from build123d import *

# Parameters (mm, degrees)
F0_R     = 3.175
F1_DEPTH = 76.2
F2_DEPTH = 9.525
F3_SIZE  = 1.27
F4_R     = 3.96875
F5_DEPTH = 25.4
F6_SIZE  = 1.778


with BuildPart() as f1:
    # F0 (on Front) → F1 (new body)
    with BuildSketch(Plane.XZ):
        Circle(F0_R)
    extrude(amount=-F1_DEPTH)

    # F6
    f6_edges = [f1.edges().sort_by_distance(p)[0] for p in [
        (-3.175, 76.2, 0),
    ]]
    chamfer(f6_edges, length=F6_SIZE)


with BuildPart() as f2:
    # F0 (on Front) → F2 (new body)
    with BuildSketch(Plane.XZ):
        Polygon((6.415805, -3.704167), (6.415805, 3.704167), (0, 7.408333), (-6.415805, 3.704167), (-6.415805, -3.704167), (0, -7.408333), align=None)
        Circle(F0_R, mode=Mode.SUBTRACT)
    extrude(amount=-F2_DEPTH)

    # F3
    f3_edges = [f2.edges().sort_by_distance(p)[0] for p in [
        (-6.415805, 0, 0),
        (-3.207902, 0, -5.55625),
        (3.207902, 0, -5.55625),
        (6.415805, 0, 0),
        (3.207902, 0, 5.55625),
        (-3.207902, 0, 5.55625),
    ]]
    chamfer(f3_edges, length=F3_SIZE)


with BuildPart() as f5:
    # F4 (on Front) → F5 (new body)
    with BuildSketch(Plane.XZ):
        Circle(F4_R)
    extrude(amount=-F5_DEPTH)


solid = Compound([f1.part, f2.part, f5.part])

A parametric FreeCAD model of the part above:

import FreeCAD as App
import Part
import Sketcher
Q = App.Units.Quantity


def edges_at(feature, points):
    """Names of the edges that pass closest to the given points."""
    edges = feature.Shape.Edges
    near = lambda p: min(range(len(edges)), key=lambda i: edges[i].distToShape(Part.Vertex(*p))[0])
    return sorted({f"Edge{near(p) + 1}" for p in points})

doc = App.newDocument("Part")
params = doc.addObject("Spreadsheet::Sheet", "Params")
for row, (alias, value) in enumerate([
    ("sketch1_diameter", "0.25 in"),
    ("pad1_length", "3 in"),
    ("chamfer_size", "0.07 in"),
    ("sketch2_diameter", "0.25 in"),
    ("pad2_length", "0.375 in"),
    ("chamfer2_size", "0.05 in"),
    ("sketch3_diameter", "0.3125 in"),
    ("pad3_length", "1 in"),
], start=1):
    params.set(f"A{row}", alias)
    params.set(f"B{row}", "=" + value)
    params.setAlias(f"B{row}", alias)

body = doc.addObject("PartDesign::Body", "Body")

# Sketch on XZ plane
sketch1 = doc.addObject("Sketcher::SketchObject", "Sketch")
body.addObject(sketch1)
sketch1.AttachmentSupport = (doc.XZ_Plane, [""])
sketch1.MapMode = "FlatFace"
sketch1.addGeometry(Part.Circle(App.Vector(0, 0, 0), App.Vector(0, 0, 1), 3.175), False)
sketch1.addConstraint(Sketcher.Constraint("Coincident", 0, 3, -1, 1))
sketch1.addConstraint(Sketcher.Constraint("Diameter", 0, Q("0.25 in")))
sketch1.setExpression("Constraints[1]", "Params.sketch1_diameter")
pad1 = doc.addObject("PartDesign::Pad", "Pad")
body.addObject(pad1)
pad1.Profile = sketch1
pad1.setExpression("Length", "Params.pad1_length")
pad1.Reversed = True
doc.recompute()

chamfer = doc.addObject("PartDesign::Chamfer", "Chamfer")
body.addObject(chamfer)
chamfer.Base = (pad1, edges_at(pad1, [(-3.175, 76.2, 0)]))
chamfer.setExpression("Size", "Params.chamfer_size")
body2 = doc.addObject("PartDesign::Body", "Body001")

# Sketch on XZ plane
sketch2 = doc.addObject("Sketcher::SketchObject", "Sketch001")
body2.addObject(sketch2)
sketch2.AttachmentSupport = (doc.getObject("XZ_Plane001"), [""])
sketch2.MapMode = "FlatFace"
sketch2.addGeometry(Part.LineSegment(App.Vector(6.415805, -3.704167, 0), App.Vector(6.415805, 3.704167, 0)), False)
sketch2.addGeometry(Part.LineSegment(App.Vector(6.415805, 3.704167, 0), App.Vector(0, 7.408333, 0)), False)
sketch2.addGeometry(Part.LineSegment(App.Vector(0, 7.408333, 0), App.Vector(-6.415805, 3.704167, 0)), False)
sketch2.addGeometry(Part.LineSegment(App.Vector(-6.415805, 3.704167, 0), App.Vector(-6.415805, -3.704167, 0)), False)
sketch2.addGeometry(Part.LineSegment(App.Vector(-6.415805, -3.704167, 0), App.Vector(0, -7.408333, 0)), False)
sketch2.addGeometry(Part.LineSegment(App.Vector(0, -7.408333, 0), App.Vector(6.415805, -3.704167, 0)), False)
sketch2.addGeometry(Part.Circle(App.Vector(0, 0, 0), App.Vector(0, 0, 1), 3.175), False)
sketch2.addConstraint(Sketcher.Constraint("Coincident", 0, 2, 1, 1))
sketch2.addConstraint(Sketcher.Constraint("Coincident", 1, 2, 2, 1))
sketch2.addConstraint(Sketcher.Constraint("Coincident", 2, 2, 3, 1))
sketch2.addConstraint(Sketcher.Constraint("Coincident", 3, 2, 4, 1))
sketch2.addConstraint(Sketcher.Constraint("Coincident", 4, 2, 5, 1))
sketch2.addConstraint(Sketcher.Constraint("Coincident", 5, 2, 0, 1))
sketch2.addConstraint(Sketcher.Constraint("Vertical", 0))
sketch2.addConstraint(Sketcher.Constraint("Vertical", 3))
sketch2.addConstraint(Sketcher.Constraint("Coincident", 6, 3, -1, 1))
sketch2.addConstraint(Sketcher.Constraint("Symmetric", 0, 2, 3, 2, -1, 1))
sketch2.addConstraint(Sketcher.Constraint("Symmetric", 1, 2, 4, 2, -1, 1))
sketch2.addConstraint(Sketcher.Constraint("PointOnObject", 1, 2, -2))
sketch2.addConstraint(Sketcher.Constraint("Parallel", 2, 5))
sketch2.addConstraint(Sketcher.Constraint("Horizontal", 0, 2, 2, 2))
sketch2.addConstraint(Sketcher.Constraint("Diameter", 6, Q("0.25 in")))
sketch2.addConstraint(Sketcher.Constraint("Angle", 1, Q("150.000005 deg")))
sketch2.addConstraint(Sketcher.Constraint("DistanceY", 3, 2, 1, 2, Q("0.4375 in")))
sketch2.addConstraint(Sketcher.Constraint("DistanceY", 0, 1, 0, 2, 7.408334))
sketch2.setExpression("Constraints[14]", "Params.sketch2_diameter")
pad2 = doc.addObject("PartDesign::Pad", "Pad001")
body2.addObject(pad2)
pad2.Profile = sketch2
pad2.setExpression("Length", "Params.pad2_length")
pad2.Reversed = True
doc.recompute()

chamfer2 = doc.addObject("PartDesign::Chamfer", "Chamfer001")
body2.addObject(chamfer2)
chamfer2.Base = (pad2, edges_at(pad2, [
    (-6.416, 0, 0),
    (-3.208, 0, -5.556),
    (3.208, 0, -5.556),
    (6.416, 0, 0),
    (3.208, 0, 5.556),
    (-3.208, 0, 5.556),
]))
chamfer2.setExpression("Size", "Params.chamfer2_size")
body3 = doc.addObject("PartDesign::Body", "Body002")

# Sketch on XZ plane
sketch3 = doc.addObject("Sketcher::SketchObject", "Sketch002")
body3.addObject(sketch3)
sketch3.AttachmentSupport = (doc.getObject("XZ_Plane002"), [""])
sketch3.MapMode = "FlatFace"
sketch3.addGeometry(Part.Circle(App.Vector(0, 0, 0), App.Vector(0, 0, 1), 3.96875), False)
sketch3.addConstraint(Sketcher.Constraint("Coincident", 0, 3, -1, 1))
sketch3.addConstraint(Sketcher.Constraint("Diameter", 0, Q("0.3125 in")))
sketch3.setExpression("Constraints[1]", "Params.sketch3_diameter")
pad3 = doc.addObject("PartDesign::Pad", "Pad002")
body3.addObject(pad3)
pad3.Profile = sketch3
pad3.setExpression("Length", "Params.pad3_length")
pad3.Reversed = True

doc.recompute()
